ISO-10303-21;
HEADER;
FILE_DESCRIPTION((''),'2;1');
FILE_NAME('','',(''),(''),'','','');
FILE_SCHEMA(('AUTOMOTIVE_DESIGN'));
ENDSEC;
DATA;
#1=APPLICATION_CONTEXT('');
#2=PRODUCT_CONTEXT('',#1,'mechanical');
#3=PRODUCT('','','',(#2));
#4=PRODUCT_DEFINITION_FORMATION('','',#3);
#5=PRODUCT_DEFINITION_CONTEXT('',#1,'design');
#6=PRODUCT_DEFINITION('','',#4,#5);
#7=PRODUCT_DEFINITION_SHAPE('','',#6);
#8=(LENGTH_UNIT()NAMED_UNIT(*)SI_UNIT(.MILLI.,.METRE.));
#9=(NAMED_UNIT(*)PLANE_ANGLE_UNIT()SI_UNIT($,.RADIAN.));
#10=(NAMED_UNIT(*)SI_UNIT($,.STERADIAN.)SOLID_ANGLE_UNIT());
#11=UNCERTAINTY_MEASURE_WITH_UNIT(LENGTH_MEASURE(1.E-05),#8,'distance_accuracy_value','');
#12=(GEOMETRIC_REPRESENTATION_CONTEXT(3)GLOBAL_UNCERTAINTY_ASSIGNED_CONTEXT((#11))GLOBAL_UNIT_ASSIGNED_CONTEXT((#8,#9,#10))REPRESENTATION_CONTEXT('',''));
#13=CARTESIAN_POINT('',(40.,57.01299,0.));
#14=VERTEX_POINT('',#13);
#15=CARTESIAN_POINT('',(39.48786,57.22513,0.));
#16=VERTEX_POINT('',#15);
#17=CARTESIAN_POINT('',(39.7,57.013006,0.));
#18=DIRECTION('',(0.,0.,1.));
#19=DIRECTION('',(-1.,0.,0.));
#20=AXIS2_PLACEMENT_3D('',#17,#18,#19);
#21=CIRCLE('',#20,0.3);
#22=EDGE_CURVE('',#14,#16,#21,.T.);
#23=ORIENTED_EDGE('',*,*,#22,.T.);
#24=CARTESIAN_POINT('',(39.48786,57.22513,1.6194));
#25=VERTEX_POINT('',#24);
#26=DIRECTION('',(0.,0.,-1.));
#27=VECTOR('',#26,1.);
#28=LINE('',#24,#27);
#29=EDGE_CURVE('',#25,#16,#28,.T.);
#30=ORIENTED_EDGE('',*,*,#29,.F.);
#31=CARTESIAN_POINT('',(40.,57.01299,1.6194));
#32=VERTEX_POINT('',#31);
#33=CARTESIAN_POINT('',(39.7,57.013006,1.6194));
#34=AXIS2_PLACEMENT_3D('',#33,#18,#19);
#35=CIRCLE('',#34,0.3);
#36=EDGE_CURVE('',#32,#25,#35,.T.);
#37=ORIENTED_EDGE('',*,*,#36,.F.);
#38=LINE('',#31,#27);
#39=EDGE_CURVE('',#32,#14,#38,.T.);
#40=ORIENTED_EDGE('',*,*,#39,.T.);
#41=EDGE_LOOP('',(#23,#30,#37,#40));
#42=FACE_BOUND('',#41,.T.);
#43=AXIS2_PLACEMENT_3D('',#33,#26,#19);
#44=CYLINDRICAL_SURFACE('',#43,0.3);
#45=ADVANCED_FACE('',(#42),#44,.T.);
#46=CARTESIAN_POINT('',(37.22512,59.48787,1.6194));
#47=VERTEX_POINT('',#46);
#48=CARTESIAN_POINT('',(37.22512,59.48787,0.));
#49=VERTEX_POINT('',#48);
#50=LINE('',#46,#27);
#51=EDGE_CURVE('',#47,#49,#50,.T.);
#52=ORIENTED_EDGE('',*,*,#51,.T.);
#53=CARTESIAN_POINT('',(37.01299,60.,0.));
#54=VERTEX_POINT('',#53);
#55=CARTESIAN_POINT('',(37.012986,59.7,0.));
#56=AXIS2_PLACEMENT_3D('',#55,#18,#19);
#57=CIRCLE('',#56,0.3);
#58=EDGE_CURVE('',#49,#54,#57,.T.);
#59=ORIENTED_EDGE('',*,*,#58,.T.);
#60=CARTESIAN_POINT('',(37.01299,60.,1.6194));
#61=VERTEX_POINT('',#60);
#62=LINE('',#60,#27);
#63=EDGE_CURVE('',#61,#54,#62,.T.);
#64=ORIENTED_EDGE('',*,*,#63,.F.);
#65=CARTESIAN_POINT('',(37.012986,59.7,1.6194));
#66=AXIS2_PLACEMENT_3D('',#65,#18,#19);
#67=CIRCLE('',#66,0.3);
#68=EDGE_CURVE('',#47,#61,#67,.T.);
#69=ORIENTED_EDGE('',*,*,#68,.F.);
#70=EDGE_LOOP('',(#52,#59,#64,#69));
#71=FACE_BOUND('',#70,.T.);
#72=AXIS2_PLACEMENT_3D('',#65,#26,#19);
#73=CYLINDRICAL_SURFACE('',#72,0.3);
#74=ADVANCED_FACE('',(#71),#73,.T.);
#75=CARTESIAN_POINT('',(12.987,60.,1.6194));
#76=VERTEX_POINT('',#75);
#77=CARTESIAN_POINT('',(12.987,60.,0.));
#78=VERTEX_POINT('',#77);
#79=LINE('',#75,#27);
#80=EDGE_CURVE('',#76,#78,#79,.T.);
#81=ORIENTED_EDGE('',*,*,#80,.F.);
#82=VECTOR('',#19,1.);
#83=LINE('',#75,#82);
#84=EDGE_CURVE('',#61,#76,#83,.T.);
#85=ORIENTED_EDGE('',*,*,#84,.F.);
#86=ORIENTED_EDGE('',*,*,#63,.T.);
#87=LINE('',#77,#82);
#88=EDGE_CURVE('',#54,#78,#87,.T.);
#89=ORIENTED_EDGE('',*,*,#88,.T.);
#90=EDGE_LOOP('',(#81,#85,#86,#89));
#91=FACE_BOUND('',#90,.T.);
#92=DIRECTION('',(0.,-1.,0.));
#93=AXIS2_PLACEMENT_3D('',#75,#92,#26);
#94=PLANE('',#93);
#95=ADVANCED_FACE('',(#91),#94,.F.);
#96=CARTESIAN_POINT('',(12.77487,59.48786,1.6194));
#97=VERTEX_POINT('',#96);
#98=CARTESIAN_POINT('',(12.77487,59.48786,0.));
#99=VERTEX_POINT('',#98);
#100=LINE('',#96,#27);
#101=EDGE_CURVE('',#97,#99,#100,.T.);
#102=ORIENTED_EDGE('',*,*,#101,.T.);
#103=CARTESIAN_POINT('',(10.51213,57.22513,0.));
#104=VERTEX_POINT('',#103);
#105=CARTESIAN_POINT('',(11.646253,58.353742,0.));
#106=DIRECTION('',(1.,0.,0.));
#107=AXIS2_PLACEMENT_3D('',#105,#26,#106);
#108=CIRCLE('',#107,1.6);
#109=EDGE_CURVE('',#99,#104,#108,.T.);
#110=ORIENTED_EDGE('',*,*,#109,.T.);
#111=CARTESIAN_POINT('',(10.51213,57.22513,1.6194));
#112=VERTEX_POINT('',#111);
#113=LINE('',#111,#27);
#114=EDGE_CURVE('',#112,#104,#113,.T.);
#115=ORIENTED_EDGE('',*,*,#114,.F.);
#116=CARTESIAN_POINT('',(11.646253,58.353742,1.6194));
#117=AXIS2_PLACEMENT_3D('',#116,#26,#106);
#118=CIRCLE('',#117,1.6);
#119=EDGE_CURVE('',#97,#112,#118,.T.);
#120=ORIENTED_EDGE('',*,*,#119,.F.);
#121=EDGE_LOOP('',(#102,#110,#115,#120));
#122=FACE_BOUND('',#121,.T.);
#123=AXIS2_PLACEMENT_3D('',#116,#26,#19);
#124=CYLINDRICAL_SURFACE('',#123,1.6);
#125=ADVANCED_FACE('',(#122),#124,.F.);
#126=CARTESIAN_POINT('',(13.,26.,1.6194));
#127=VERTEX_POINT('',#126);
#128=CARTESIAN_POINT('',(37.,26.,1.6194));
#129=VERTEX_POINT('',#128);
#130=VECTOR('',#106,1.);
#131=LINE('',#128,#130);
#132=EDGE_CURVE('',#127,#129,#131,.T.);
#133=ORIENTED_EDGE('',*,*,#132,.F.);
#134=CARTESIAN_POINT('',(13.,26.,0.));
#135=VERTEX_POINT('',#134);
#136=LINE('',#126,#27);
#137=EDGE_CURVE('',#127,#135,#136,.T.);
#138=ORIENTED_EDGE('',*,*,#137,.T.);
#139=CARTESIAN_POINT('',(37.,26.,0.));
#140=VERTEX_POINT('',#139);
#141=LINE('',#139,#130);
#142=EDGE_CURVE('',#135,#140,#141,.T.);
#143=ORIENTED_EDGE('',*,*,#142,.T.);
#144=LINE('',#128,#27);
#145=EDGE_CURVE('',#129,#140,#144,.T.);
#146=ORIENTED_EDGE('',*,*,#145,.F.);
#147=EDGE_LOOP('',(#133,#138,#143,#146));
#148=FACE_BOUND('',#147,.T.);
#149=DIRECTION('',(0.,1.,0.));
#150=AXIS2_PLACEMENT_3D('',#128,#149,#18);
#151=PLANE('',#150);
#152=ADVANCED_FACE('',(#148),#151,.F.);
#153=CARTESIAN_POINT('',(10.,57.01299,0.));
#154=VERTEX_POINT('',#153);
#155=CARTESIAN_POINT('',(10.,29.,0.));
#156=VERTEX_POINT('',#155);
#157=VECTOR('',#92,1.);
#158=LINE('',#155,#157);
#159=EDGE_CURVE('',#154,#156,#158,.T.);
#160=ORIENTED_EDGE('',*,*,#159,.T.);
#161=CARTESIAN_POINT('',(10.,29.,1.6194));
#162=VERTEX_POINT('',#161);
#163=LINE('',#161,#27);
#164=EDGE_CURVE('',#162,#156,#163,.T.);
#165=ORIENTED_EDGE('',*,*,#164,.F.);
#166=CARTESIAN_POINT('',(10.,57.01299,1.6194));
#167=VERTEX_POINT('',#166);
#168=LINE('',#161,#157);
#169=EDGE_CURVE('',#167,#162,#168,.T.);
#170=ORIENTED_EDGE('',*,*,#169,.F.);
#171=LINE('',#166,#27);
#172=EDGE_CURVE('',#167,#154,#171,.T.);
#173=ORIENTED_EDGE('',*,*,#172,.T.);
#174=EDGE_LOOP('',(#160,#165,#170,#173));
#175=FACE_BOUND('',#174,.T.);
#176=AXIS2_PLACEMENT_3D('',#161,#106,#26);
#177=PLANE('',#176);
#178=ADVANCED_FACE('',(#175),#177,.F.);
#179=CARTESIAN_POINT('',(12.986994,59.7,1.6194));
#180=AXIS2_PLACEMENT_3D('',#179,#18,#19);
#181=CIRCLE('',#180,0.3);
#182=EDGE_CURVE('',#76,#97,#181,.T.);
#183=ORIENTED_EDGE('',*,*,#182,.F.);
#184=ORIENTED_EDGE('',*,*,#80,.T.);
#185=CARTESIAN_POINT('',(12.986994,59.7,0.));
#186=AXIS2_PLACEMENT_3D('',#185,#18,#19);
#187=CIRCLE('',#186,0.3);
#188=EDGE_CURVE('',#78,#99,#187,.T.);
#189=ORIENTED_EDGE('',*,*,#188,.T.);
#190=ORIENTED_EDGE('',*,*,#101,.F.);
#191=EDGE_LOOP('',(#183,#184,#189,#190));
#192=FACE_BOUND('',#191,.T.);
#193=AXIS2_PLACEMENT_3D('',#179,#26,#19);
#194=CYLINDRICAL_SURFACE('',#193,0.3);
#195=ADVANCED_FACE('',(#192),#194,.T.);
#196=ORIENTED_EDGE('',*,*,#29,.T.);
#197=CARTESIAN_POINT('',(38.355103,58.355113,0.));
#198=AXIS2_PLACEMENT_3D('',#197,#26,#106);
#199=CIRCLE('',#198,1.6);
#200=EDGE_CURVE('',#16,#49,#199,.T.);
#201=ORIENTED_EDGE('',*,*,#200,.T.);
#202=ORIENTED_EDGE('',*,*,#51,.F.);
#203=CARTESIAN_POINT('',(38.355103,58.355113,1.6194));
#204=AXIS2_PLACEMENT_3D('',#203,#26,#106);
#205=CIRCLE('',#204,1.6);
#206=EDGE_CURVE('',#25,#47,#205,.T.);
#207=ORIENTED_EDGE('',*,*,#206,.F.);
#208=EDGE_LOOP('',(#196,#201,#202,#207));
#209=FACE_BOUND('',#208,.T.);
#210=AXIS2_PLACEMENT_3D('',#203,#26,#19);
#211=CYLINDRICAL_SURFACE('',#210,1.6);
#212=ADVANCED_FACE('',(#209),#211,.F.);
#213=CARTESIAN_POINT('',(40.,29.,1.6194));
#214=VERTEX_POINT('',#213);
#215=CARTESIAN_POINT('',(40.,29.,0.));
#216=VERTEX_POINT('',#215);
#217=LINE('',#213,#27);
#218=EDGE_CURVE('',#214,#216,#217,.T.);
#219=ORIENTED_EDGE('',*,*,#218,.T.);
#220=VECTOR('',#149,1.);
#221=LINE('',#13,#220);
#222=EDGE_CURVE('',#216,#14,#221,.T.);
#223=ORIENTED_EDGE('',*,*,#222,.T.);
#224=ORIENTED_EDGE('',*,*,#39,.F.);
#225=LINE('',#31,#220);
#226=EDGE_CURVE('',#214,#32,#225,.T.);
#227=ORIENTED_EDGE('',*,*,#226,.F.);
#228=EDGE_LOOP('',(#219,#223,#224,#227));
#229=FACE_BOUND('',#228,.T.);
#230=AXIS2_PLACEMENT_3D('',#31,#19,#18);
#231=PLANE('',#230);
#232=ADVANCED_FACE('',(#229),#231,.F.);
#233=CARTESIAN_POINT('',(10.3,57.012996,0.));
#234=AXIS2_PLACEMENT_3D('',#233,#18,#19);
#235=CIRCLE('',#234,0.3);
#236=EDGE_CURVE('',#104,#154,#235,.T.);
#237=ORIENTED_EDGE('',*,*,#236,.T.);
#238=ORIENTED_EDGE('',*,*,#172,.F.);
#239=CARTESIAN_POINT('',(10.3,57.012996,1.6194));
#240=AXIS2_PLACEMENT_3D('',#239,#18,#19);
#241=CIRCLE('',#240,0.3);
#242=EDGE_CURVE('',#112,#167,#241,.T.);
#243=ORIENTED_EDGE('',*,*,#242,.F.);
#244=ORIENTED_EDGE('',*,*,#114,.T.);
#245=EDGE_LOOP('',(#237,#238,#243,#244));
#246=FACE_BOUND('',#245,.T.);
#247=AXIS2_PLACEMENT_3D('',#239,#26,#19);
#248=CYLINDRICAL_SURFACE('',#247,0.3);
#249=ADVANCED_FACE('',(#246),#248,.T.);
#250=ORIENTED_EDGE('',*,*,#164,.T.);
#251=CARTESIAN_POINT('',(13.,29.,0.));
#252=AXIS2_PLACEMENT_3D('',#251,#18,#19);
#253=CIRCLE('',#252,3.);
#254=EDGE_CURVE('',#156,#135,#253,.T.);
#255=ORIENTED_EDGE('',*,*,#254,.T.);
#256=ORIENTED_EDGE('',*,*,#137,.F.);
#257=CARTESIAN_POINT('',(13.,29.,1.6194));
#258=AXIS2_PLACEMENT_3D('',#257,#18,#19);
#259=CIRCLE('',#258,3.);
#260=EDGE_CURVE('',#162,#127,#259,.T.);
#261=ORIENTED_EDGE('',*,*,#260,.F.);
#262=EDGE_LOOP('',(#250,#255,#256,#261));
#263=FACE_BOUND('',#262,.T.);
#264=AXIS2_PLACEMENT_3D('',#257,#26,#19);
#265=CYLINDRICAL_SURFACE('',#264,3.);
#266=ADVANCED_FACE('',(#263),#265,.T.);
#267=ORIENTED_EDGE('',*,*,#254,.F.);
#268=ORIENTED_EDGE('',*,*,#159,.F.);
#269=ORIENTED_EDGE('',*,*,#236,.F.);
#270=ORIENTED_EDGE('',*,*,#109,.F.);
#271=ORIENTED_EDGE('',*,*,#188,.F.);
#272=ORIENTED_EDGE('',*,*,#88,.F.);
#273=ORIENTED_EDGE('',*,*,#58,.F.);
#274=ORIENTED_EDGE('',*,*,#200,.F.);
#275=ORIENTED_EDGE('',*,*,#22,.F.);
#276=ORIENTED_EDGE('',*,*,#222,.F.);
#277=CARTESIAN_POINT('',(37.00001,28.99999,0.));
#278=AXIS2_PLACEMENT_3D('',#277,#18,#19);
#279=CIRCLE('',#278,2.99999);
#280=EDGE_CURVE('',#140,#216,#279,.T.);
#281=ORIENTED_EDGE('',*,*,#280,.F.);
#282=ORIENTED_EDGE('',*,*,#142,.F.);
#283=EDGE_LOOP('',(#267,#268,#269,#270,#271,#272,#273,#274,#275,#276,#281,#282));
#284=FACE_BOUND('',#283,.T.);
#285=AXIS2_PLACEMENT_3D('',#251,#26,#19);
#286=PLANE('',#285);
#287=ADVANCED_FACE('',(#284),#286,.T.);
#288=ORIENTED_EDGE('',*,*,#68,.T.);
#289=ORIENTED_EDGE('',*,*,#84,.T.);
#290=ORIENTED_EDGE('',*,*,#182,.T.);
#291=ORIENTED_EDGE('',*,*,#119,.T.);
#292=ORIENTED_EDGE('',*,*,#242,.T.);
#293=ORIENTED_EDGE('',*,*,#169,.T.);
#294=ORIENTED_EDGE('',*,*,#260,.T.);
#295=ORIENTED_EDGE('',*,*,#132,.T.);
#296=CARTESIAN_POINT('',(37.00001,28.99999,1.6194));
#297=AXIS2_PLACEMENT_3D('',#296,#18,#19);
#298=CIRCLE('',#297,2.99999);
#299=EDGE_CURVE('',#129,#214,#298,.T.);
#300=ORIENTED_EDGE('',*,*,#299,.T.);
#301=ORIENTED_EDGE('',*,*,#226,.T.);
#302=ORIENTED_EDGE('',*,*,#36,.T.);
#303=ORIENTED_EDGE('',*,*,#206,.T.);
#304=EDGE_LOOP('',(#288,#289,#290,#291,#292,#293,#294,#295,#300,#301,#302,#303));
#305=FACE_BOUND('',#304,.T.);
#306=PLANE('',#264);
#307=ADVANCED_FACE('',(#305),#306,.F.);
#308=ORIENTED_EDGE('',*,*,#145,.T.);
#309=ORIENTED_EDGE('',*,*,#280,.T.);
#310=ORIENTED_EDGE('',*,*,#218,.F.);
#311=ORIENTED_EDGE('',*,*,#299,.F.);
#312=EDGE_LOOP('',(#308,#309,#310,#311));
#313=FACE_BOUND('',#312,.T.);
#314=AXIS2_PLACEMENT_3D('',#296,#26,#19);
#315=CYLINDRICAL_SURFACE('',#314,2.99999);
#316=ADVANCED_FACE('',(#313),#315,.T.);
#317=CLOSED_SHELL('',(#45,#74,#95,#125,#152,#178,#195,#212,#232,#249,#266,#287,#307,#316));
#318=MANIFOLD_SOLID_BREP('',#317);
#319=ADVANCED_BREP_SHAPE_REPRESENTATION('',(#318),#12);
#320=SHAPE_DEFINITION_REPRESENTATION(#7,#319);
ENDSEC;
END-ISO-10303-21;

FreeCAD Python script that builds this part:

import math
import FreeCAD as App
import Part
import Sketcher

V = App.Vector

doc = App.newDocument("Part")
body = doc.addObject("PartDesign::Body", "Body")

sketch1 = body.newObject("Sketcher::SketchObject", "Sketch")
sketch1.AttachmentSupport = (doc.getObject("XY_Plane"), [""])
sketch1.MapMode = "FlatFace"
sketch1.addGeometry([
    Part.LineSegment(V(10, 57.01, 0), V(10, 29, 0)),
    Part.ArcOfCircle(Part.Circle(V(13, 29, 0), V(0, 0, 1), 3), math.radians(180), math.radians(270)),
    Part.LineSegment(V(13, 26, 0), V(37, 26, 0)),
    Part.ArcOfCircle(Part.Circle(V(37, 29, 0), V(0, 0, 1), 3), math.radians(-90), math.radians(0)),
    Part.LineSegment(V(40, 29, 0), V(40, 57.01, 0)),
    Part.ArcOfCircle(Part.Circle(V(39.7, 57.01, 0), V(0, 0, 1), 0.3), math.radians(0), math.radians(135)),
    Part.ArcOfCircle(Part.Circle(V(38.36, 58.36, 0), V(0, 0, 1), 1.6), math.radians(135), math.radians(315)),
    Part.ArcOfCircle(Part.Circle(V(37.01, 59.7, 0), V(0, 0, 1), 0.3), math.radians(-45), math.radians(90)),
    Part.LineSegment(V(37.01, 60, 0), V(12.99, 60, 0)),
    Part.ArcOfCircle(Part.Circle(V(12.99, 59.7, 0), V(0, 0, 1), 0.3), math.radians(90), math.radians(225)),
    Part.ArcOfCircle(Part.Circle(V(11.65, 58.35, 0), V(0, 0, 1), 1.6), math.radians(-135), math.radians(45)),
    Part.ArcOfCircle(Part.Circle(V(10.3, 57.01, 0), V(0, 0, 1), 0.3), math.radians(45), math.radians(180)),
], False)
sketch1.addConstraint([
    Sketcher.Constraint("Tangent", 0, 2, 1, 1),
    Sketcher.Constraint("Tangent", 1, 2, 2, 1),
    Sketcher.Constraint("Coincident", 2, 2, 3, 1),
    Sketcher.Constraint("Coincident", 3, 2, 4, 1),
    Sketcher.Constraint("Coincident", 4, 2, 5, 1),
    Sketcher.Constraint("Coincident", 5, 2, 6, 2),
    Sketcher.Constraint("Coincident", 6, 1, 7, 1),
    Sketcher.Constraint("Coincident", 7, 2, 8, 1),
    Sketcher.Constraint("Coincident", 8, 2, 9, 1),
    Sketcher.Constraint("Coincident", 9, 2, 10, 2),
    Sketcher.Constraint("Coincident", 10, 1, 11, 1),
    Sketcher.Constraint("Coincident", 11, 2, 0, 1),
    Sketcher.Constraint("Vertical", 0),
    Sketcher.Constraint("Horizontal", 2),
    Sketcher.Constraint("Vertical", 4),
    Sketcher.Constraint("Horizontal", 8),
    Sketcher.Constraint("Equal", 5, 7),
    Sketcher.Constraint("Equal", 7, 9),
    Sketcher.Constraint("Equal", 6, 10),
    Sketcher.Constraint("Equal", 9, 11),
    Sketcher.Constraint("Horizontal", 0, 2, 3, 2),
    Sketcher.Constraint("Horizontal", 5, 2, 10, 1),
    Sketcher.Constraint("Horizontal", 4, 2, 11, 2),
    Sketcher.Constraint("Radius", 1, 3.0),
    Sketcher.Constraint("Radius", 5, 0.3),
    Sketcher.Constraint("Radius", 6, 1.6),
    Sketcher.Constraint("DistanceX", 2, 1, 2, 2, 24.0),
    Sketcher.Constraint("DistanceX", -1, 1, 1, 3, 13.0),
    Sketcher.Constraint("DistanceY", -1, 1, 1, 3, 29.0),
    Sketcher.Constraint("DistanceX", -1, 1, 3, 2, 40.0),
    Sketcher.Constraint("DistanceY", -1, 1, 7, 2, 60.0),
    Sketcher.Constraint("Radius", 3, 2.99999),
    Sketcher.Constraint("DistanceX", -1, 1, 8, 2, 12.987),
    Sketcher.Constraint("DistanceX", 8, 2, 8, 1, 24.02599),
    Sketcher.Constraint("DistanceY", 0, 2, 0, 1, 28.01299),
    Sketcher.Constraint("DistanceY", -1, 1, 10, 3, 58.353742),
    Sketcher.Constraint("DistanceX", -1, 1, 5, 2, 39.48786),
    Sketcher.Constraint("DistanceY", -1, 1, 5, 2, 57.22513),
    Sketcher.Constraint("DistanceX", -1, 1, 6, 1, 37.22512),
    Sketcher.Constraint("DistanceX", -1, 1, 9, 2, 12.77487),
    Sketcher.Constraint("DistanceY", -1, 1, 9, 2, 59.48786),
    Sketcher.Constraint("DistanceX", 9, 3, 6, 3, 25.368109),
])
pad1 = body.newObject("PartDesign::Pad", "Pad")
pad1.Profile = sketch1
pad1.Length = 1.6194

doc.recompute()
